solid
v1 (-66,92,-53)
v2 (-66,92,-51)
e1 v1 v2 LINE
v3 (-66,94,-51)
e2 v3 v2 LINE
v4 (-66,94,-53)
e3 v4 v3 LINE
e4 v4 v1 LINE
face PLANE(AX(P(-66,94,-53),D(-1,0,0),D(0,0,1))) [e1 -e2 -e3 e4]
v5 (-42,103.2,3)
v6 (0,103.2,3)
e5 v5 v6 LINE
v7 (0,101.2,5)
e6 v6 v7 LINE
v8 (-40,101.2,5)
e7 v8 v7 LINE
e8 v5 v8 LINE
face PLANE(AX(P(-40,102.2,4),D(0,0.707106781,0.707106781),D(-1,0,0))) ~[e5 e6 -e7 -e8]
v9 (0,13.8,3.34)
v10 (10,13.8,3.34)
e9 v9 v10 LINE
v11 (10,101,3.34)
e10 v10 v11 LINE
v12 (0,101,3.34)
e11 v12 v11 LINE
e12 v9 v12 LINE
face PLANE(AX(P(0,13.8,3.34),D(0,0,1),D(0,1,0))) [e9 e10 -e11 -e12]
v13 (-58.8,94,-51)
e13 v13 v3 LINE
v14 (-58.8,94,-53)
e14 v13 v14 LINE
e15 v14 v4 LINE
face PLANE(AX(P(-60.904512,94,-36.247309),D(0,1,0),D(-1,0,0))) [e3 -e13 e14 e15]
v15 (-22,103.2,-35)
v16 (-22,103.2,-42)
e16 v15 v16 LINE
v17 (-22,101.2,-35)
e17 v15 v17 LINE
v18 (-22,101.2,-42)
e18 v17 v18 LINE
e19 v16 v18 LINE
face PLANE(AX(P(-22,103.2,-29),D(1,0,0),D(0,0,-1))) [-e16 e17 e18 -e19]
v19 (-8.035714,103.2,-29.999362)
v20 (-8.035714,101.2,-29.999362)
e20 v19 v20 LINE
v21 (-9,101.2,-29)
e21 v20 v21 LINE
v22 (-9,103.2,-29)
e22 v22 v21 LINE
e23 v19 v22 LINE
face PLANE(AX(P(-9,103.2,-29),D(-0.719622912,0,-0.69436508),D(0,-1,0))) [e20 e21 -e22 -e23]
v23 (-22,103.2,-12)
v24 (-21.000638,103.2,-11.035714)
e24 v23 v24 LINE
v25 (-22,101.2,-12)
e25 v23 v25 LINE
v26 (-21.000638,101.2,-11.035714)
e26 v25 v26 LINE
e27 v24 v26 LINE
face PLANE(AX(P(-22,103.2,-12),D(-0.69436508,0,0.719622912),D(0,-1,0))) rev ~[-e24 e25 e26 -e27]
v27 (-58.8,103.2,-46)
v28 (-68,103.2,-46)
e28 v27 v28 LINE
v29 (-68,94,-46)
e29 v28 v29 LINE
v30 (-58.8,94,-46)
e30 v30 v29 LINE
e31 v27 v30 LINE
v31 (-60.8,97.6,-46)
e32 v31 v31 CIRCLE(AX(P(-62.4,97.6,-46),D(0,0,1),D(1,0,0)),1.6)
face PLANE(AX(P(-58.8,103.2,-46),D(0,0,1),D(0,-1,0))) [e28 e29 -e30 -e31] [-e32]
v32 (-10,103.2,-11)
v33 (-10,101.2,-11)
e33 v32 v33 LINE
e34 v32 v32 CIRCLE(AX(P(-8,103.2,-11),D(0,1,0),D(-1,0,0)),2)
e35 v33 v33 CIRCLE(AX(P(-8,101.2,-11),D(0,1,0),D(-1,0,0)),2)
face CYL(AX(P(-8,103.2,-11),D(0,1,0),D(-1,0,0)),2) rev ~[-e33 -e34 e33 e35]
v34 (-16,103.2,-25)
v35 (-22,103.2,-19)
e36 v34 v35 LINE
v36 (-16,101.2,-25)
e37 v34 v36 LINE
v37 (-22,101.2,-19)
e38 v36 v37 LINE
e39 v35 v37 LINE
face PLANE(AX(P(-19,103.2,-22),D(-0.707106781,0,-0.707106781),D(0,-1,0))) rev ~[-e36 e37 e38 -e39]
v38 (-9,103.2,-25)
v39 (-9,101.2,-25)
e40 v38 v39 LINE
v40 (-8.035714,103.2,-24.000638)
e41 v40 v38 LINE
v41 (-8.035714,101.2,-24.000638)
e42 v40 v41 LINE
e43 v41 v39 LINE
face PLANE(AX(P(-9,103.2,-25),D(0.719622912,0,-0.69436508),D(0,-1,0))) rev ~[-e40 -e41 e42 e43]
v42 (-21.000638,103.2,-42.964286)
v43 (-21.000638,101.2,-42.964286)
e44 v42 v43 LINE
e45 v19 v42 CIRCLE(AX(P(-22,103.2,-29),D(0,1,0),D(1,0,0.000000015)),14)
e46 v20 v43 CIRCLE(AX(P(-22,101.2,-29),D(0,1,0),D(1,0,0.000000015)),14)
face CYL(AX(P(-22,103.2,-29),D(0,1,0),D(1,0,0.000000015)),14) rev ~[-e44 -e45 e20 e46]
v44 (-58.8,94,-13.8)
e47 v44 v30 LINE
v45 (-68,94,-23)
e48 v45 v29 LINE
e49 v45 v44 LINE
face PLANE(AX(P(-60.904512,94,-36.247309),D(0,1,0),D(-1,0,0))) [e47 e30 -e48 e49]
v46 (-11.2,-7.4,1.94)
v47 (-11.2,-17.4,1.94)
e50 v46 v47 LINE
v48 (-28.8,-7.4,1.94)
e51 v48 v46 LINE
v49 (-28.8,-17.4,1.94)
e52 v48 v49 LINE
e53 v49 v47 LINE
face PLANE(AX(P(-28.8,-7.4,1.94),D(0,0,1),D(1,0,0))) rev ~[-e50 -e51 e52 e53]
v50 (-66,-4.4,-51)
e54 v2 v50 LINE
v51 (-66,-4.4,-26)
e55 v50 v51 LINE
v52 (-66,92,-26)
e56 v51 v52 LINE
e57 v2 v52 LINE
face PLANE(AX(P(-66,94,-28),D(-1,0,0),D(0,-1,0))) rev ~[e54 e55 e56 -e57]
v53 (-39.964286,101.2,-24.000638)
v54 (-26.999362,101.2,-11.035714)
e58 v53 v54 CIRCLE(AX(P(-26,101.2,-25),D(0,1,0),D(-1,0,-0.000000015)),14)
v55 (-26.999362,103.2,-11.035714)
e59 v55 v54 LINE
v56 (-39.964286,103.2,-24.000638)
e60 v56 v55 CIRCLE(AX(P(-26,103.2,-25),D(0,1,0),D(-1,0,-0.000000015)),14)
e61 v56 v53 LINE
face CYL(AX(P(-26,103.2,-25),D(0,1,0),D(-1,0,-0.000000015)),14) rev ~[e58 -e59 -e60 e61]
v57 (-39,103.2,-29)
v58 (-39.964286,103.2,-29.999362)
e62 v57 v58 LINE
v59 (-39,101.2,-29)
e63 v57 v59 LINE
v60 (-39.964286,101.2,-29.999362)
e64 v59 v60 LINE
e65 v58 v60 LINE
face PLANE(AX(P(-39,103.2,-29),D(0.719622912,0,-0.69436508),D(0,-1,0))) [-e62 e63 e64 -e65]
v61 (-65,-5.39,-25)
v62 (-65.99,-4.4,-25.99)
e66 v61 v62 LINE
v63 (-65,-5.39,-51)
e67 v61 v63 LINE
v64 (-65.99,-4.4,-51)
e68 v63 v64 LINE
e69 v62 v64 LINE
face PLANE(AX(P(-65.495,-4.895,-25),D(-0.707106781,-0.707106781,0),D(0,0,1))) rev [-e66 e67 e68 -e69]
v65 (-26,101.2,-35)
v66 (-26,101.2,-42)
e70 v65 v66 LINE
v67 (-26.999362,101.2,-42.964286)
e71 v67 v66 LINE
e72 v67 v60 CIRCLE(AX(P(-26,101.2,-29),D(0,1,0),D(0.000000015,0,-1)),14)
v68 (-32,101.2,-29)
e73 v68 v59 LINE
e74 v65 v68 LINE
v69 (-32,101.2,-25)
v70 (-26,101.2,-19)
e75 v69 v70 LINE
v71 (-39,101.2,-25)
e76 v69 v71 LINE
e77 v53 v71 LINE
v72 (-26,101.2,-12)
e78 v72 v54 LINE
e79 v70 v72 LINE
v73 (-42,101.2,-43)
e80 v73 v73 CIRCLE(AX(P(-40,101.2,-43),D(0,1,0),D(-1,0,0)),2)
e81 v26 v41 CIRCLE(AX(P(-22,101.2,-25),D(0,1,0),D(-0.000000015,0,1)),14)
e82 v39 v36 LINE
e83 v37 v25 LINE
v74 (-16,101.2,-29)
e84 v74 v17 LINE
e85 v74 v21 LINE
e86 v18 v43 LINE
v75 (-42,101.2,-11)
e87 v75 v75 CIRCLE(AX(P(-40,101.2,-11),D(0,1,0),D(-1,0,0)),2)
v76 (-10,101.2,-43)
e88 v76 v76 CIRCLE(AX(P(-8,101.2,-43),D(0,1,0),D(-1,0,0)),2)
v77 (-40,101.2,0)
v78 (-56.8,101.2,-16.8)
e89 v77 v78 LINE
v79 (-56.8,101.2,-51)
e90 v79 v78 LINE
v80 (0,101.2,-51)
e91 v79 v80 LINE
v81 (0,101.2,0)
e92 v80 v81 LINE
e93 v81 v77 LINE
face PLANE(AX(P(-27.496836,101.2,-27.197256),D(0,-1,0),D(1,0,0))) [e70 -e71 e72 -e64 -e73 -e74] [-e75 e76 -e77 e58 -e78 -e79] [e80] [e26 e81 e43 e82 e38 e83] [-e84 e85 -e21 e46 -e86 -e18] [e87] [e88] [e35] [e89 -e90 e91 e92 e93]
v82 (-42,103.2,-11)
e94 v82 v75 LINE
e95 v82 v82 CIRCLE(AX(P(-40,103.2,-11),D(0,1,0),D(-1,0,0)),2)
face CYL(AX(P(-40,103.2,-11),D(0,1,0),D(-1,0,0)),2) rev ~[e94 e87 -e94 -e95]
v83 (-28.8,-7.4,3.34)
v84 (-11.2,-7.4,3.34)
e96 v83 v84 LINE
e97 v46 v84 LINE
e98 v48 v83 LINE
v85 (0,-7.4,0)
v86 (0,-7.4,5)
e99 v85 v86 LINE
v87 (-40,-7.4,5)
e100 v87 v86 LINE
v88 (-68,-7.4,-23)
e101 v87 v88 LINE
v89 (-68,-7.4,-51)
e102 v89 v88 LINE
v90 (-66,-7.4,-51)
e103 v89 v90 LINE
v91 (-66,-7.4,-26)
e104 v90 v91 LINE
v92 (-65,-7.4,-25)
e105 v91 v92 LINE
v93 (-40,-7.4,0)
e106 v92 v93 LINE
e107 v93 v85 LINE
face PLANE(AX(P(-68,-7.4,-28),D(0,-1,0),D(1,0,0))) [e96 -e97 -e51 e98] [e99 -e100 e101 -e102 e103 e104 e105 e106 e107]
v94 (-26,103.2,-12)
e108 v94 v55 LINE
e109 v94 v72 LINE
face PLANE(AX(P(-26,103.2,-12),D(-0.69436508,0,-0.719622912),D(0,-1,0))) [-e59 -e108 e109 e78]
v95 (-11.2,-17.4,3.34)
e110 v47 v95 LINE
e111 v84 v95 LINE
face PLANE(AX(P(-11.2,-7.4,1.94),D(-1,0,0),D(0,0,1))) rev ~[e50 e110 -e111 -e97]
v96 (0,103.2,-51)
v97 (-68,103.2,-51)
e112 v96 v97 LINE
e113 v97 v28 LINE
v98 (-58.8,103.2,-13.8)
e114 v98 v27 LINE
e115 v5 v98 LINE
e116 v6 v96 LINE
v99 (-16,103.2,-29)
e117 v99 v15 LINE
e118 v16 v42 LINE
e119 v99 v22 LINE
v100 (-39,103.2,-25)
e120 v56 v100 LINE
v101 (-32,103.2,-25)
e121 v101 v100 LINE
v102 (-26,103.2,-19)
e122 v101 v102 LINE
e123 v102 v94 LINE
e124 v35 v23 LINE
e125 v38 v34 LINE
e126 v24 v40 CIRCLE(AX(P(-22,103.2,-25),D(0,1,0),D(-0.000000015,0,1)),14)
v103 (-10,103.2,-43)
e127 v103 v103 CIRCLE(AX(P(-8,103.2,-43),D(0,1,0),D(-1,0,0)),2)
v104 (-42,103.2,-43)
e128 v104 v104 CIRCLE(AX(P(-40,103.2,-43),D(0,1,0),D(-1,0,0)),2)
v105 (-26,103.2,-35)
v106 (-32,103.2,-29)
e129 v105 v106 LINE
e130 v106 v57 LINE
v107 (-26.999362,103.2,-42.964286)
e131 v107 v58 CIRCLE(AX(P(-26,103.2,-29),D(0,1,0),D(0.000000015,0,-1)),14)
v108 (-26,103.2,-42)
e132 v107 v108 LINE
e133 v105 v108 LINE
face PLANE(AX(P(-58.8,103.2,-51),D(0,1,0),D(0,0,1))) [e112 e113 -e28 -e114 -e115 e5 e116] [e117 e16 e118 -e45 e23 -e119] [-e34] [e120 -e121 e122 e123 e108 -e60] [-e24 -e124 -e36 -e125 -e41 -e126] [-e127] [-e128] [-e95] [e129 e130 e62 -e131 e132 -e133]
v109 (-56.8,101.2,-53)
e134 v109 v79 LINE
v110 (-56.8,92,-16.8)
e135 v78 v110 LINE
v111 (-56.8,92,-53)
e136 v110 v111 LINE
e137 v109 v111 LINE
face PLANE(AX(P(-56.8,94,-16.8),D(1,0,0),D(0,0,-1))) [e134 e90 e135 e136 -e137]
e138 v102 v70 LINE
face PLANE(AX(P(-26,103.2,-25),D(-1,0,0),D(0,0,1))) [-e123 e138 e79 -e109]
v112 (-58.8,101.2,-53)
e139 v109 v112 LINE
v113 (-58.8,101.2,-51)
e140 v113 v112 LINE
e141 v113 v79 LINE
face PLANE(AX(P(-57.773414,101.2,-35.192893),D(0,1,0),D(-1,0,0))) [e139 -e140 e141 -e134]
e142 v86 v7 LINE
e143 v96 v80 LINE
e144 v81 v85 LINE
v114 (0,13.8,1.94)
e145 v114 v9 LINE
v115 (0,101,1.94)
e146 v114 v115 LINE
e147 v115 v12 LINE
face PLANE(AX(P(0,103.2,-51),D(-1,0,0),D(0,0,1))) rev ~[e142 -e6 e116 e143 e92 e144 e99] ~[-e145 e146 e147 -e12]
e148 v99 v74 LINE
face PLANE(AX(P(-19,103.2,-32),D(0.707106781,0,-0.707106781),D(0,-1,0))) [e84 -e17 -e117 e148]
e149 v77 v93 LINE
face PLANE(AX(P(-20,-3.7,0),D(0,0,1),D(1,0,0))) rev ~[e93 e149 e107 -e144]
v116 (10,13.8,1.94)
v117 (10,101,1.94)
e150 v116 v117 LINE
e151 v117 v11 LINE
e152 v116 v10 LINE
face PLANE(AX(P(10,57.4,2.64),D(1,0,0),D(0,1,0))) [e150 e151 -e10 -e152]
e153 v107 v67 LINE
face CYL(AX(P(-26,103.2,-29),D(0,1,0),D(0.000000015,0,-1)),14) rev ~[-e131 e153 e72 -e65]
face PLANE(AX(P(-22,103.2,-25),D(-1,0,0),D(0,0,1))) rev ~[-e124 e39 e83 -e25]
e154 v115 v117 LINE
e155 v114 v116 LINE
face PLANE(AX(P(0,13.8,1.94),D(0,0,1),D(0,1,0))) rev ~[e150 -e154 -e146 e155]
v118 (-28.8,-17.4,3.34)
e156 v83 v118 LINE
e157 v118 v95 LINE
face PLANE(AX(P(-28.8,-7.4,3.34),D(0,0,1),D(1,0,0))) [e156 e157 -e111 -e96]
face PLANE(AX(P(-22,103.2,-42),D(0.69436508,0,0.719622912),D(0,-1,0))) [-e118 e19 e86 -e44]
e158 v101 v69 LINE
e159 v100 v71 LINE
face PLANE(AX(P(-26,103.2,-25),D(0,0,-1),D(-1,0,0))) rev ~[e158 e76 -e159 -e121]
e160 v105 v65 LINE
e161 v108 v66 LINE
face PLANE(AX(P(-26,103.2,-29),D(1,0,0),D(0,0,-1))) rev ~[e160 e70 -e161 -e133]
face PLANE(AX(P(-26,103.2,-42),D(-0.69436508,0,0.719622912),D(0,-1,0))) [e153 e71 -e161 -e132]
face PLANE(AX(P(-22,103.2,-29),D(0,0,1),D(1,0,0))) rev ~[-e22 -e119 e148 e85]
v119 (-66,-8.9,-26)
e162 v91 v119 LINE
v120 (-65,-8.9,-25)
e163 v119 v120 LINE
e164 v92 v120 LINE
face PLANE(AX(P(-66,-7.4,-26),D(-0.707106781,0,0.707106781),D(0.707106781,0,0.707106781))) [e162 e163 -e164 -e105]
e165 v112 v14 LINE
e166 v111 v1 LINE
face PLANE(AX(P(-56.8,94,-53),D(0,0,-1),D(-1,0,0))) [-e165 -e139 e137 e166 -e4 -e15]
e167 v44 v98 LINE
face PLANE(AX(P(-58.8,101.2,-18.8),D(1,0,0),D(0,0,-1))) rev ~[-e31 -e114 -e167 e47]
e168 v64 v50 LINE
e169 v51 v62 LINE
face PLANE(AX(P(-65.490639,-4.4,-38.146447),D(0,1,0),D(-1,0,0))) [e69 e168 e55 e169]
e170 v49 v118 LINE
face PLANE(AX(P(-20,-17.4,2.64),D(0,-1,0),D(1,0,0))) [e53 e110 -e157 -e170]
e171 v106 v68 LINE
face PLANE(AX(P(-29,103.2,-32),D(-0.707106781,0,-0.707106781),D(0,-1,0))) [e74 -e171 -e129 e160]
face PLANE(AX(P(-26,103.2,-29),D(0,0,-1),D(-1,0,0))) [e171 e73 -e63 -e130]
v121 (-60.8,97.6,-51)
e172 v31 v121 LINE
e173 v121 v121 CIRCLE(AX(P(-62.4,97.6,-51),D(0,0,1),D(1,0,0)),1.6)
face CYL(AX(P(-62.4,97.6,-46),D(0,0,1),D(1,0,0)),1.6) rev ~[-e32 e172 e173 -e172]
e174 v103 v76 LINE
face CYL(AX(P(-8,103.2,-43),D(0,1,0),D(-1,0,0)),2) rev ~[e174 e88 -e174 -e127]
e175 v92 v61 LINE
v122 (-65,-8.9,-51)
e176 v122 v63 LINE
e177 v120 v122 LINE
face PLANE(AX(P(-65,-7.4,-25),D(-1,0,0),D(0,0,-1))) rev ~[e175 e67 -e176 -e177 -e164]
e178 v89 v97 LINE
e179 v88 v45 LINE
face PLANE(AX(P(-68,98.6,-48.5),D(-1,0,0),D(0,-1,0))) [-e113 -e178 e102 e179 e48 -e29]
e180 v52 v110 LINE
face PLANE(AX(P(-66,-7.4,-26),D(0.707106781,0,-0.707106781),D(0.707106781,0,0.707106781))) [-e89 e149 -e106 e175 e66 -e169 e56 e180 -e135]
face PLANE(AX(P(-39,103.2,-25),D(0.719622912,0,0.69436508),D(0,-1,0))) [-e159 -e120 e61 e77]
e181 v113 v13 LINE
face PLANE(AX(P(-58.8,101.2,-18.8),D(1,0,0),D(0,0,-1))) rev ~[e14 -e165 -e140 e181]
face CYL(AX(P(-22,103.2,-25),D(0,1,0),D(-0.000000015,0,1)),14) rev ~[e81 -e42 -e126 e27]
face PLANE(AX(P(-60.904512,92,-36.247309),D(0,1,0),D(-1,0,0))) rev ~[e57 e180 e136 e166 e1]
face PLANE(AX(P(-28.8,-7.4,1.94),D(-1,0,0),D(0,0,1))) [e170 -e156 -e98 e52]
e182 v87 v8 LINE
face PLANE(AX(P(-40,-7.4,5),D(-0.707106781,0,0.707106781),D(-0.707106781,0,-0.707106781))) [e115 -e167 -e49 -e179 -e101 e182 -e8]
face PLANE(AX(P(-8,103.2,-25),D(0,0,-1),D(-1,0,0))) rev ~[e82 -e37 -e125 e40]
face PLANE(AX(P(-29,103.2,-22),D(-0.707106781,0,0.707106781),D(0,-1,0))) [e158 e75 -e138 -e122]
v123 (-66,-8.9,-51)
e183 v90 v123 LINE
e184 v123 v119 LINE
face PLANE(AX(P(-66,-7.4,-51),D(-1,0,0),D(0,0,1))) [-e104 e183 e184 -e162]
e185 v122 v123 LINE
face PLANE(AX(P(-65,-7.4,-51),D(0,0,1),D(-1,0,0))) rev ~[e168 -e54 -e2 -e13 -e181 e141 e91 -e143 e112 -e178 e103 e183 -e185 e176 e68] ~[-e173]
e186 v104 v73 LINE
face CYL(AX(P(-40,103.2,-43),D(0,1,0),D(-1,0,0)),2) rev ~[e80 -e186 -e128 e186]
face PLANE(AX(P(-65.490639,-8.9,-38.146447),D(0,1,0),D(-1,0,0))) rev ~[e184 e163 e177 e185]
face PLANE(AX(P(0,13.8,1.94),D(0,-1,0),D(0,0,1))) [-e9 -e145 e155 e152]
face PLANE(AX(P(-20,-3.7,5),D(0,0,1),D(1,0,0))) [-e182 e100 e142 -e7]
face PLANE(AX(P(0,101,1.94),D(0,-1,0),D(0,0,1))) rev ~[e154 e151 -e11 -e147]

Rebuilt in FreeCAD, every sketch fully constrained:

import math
import FreeCAD as App
import Part
import Sketcher
from FreeCAD import Vector
Q = App.Units.Quantity


def edges_at(feature, points):
    """Names of the edges that pass closest to the given points."""
    edges = feature.Shape.Edges
    near = lambda p: min(range(len(edges)), key=lambda i: edges[i].distToShape(Part.Vertex(*p))[0])
    return sorted({f"Edge{near(p) + 1}" for p in points})

doc = App.newDocument("Part")
params = doc.addObject("Spreadsheet::Sheet", "Params")
for row, (alias, value) in enumerate([
    ("sketch1_width", "40 mm"),
    ("sketch1_height", "93 mm"),
    ("pad1_length", "5 mm"),
    ("sketch2_width", "40 mm"),
    ("sketch2_height", "5 mm"),
    ("pad2_length", "10.2 mm"),
    ("sketch3_width", "40 mm"),
    ("sketch3_height", "7.4 mm"),
    ("pad3_length", "5 mm"),
    ("sketch4_width", "2 mm"),
    ("sketch4_height", "5 mm"),
    ("pad4_length", "110.6 mm"),
    ("sketch5_width", "9.2 mm"),
    ("sketch6_width", "2 mm"),
    ("sketch6_height", "101.4 mm"),
    ("pad5_length", "23 mm"),
    ("sketch7_width", "87.2 mm"),
    ("sketch7_height", "1.4 mm"),
    ("pad6_length", "10 mm"),
    ("sketch8_width", "40 mm"),
    ("sketch8_height", "51 mm"),
    ("sketch8_width2", "58.8 mm"),
    ("pad7_length", "2 mm"),
    ("sketch9_width", "2 mm"),
    ("sketch9_height", "34.2 mm"),
    ("pad8_length", "7.2 mm"),
    ("sketch10_height", "27 mm"),
    ("sketch10_width", "9.2 mm"),
    ("pad9_length", "2 mm"),
    ("sketch11_height", "5 mm"),
    ("sketch11_width", "9.2 mm"),
    ("pad10_length", "9.2 mm"),
    ("sketch12_diameter", "3.2 mm"),
    ("pocket2_length", "5 mm"),
    ("sketch13_width", "17.6 mm"),
    ("sketch13_height", "1.4 mm"),
    ("pad11_length", "10 mm"),
    ("sketch14_diameter", "4 mm"),
    ("sketch14_radius", "14 mm"),
    ("pocket3_length", "2 mm"),
    ("chamfer_size", "6 mm"),
    ("chamfer2_size", "2 mm"),
    ("sketch15_width", "1 mm"),
    ("sketch15_height", "25 mm"),
    ("sketch15_height2", "26 mm"),
    ("pad12_length", "1.5 mm"),
    ("pad12_length2", "3 mm"),
    ("chamfer3_size", "0.99 mm"),
    ("chamfer4_size", "1 mm"),
], start=1):
    params.set(f"A{row}", alias)
    params.set(f"B{row}", "=" + value)
    params.setAlias(f"B{row}", alias)

body = doc.addObject("PartDesign::Body", "Body")

# Sketch on XY plane
sketch1 = body.newObject("Sketcher::SketchObject", "Sketch")
sketch1.AttachmentSupport = (doc.getObject("XY_Plane"), [""])
sketch1.MapMode = "FlatFace"
sketch1.addGeometry([
    Part.LineSegment(Vector(-40, 93, 0), Vector(-40, 0, 0)),
    Part.LineSegment(Vector(-40, 0, 0), Vector(0, 0, 0)),
    Part.LineSegment(Vector(0, 0, 0), Vector(0, 93, 0)),
    Part.LineSegment(Vector(0, 93, 0), Vector(-40, 93, 0)),
], False)
sketch1.addConstraint([
    Sketcher.Constraint("Coincident", 0, 2, 1, 1),
    Sketcher.Constraint("Coincident", 1, 2, 2, 1),
    Sketcher.Constraint("Coincident", 2, 2, 3, 1),
    Sketcher.Constraint("Coincident", 3, 2, 0, 1),
    Sketcher.Constraint("Vertical", 0),
    Sketcher.Constraint("Horizontal", 1),
    Sketcher.Constraint("Vertical", 2),
    Sketcher.Constraint("Horizontal", 3),
    Sketcher.Constraint("Coincident", 1, 2, -1, 1),
    Sketcher.Constraint("DistanceX", 1, 1, 1, 2, 40.0),
    Sketcher.Constraint("DistanceY", 0, 2, 0, 1, 93.0),
])
sketch1.setExpression("Constraints[9]", "Params.sketch1_width")
sketch1.setExpression("Constraints[10]", "Params.sketch1_height")
pad1 = body.newObject("PartDesign::Pad", "Pad")
pad1.Profile = sketch1
pad1.setExpression("Length", "Params.pad1_length")

# Sketch on XZ plane
sketch2 = body.newObject("Sketcher::SketchObject", "Sketch001")
sketch2.AttachmentSupport = (doc.getObject("XZ_Plane"), [""])
sketch2.MapMode = "FlatFace"
sketch2.AttachmentOffset = App.Placement(Vector(0, 0, -93), App.Rotation())
sketch2.addGeometry([
    Part.LineSegment(Vector(-40, 0, 0), Vector(-40, 5, 0)),
    Part.LineSegment(Vector(-40, 5, 0), Vector(0, 5, 0)),
    Part.LineSegment(Vector(0, 5, 0), Vector(0, 0, 0)),
    Part.LineSegment(Vector(0, 0, 0), Vector(-40, 0, 0)),
], False)
sketch2.addConstraint([
    Sketcher.Constraint("Coincident", 0, 2, 1, 1),
    Sketcher.Constraint("Coincident", 1, 2, 2, 1),
    Sketcher.Constraint("Coincident", 2, 2, 3, 1),
    Sketcher.Constraint("Coincident", 3, 2, 0, 1),
    Sketcher.Constraint("Vertical", 0),
    Sketcher.Constraint("Horizontal", 1),
    Sketcher.Constraint("Vertical", 2),
    Sketcher.Constraint("Horizontal", 3),
    Sketcher.Constraint("Coincident", 2, 2, -1, 1),
    Sketcher.Constraint("DistanceX", 1, 1, 1, 2, 40.0),
    Sketcher.Constraint("DistanceY", 0, 1, 0, 2, 5.0),
])
sketch2.setExpression("Constraints[9]", "Params.sketch2_width")
sketch2.setExpression("Constraints[10]", "Params.sketch2_height")
pad2 = body.newObject("PartDesign::Pad", "Pad001")
pad2.Profile = sketch2
pad2.setExpression("Length", "Params.pad2_length")
pad2.Reversed = True

# Sketch on XY plane
sketch3 = body.newObject("Sketcher::SketchObject", "Sketch002")
sketch3.AttachmentSupport = (doc.getObject("XY_Plane"), [""])
sketch3.MapMode = "FlatFace"
sketch3.addGeometry([
    Part.LineSegment(Vector(-40, 0, 0), Vector(-40, -7.4, 0)),
    Part.LineSegment(Vector(-40, -7.4, 0), Vector(0, -7.4, 0)),
    Part.LineSegment(Vector(0, -7.4, 0), Vector(0, 0, 0)),
    Part.LineSegment(Vector(0, 0, 0), Vector(-40, 0, 0)),
], False)
sketch3.addConstraint([
    Sketcher.Constraint("Coincident", 0, 2, 1, 1),
    Sketcher.Constraint("Coincident", 1, 2, 2, 1),
    Sketcher.Constraint("Coincident", 2, 2, 3, 1),
    Sketcher.Constraint("Coincident", 3, 2, 0, 1),
    Sketcher.Constraint("Vertical", 0),
    Sketcher.Constraint("Horizontal", 1),
    Sketcher.Constraint("Vertical", 2),
    Sketcher.Constraint("Horizontal", 3),
    Sketcher.Constraint("Coincident", 2, 2, -1, 1),
    Sketcher.Constraint("DistanceX", 1, 1, 1, 2, 40.0),
    Sketcher.Constraint("DistanceY", 0, 2, 0, 1, 7.4),
])
sketch3.setExpression("Constraints[9]", "Params.sketch3_width")
sketch3.setExpression("Constraints[10]", "Params.sketch3_height")
pad3 = body.newObject("PartDesign::Pad", "Pad002")
pad3.Profile = sketch3
pad3.setExpression("Length", "Params.pad3_length")

# Sketch on XZ plane
sketch4 = body.newObject("Sketcher::SketchObject", "Sketch003")
sketch4.AttachmentSupport = (doc.getObject("XZ_Plane"), [""])
sketch4.MapMode = "FlatFace"
sketch4.AttachmentOffset = App.Placement(Vector(0, 0, 7.4), App.Rotation())
sketch4.addGeometry([
    Part.LineSegment(Vector(-40, 5, 0), Vector(-68, -23, 0)),  # 0
    Part.LineSegment(Vector(-68, -23, 0), Vector(-68, -28, 0)),  # 1
    Part.LineSegment(Vector(-68, -28, 0), Vector(-66, -28, 0)),  # 2
    Part.LineSegment(Vector(-66, -28, 0), Vector(-66, -26, 0)),  # 3
    Part.LineSegment(Vector(-66, -26, 0), Vector(-40, 0, 0)),  # 4
    Part.LineSegment(Vector(-40, 0, 0), Vector(-40, 5, 0)),  # 5
], False)
sketch4.addConstraint([
    Sketcher.Constraint("Coincident", 0, 2, 1, 1),
    Sketcher.Constraint("Coincident", 1, 2, 2, 1),
    Sketcher.Constraint("Coincident", 2, 2, 3, 1),
    Sketcher.Constraint("Coincident", 3, 2, 4, 1),
    Sketcher.Constraint("Coincident", 4, 2, 5, 1),
    Sketcher.Constraint("Coincident", 5, 2, 0, 1),
    Sketcher.Constraint("Vertical", 1),
    Sketcher.Constraint("Horizontal", 2),
    Sketcher.Constraint("Vertical", 3),
    Sketcher.Constraint("Vertical", 5),
    Sketcher.Constraint("PointOnObject", 4, 2, -1),
    Sketcher.Constraint("Parallel", 0, 4),
    Sketcher.Constraint("Equal", 2, 3),
    Sketcher.Constraint("Equal", 1, 5),
    Sketcher.Constraint("DistanceX", 2, 1, 2, 2, 2.0),
    Sketcher.Constraint("DistanceY", 1, 2, 1, 1, 5.0),
    Sketcher.Constraint("DistanceX", 0, 2, -1, 1, 68.0),
    Sketcher.Constraint("DistanceY", 0, 2, -1, 1, 23.0),
])
sketch4.setExpression("Constraints[14]", "Params.sketch4_width")
sketch4.setExpression("Constraints[15]", "Params.sketch4_height")
pad4 = body.newObject("PartDesign::Pad", "Pad003")
pad4.Profile = sketch4
pad4.setExpression("Length", "Params.pad4_length")
pad4.Reversed = True

# Sketch on XY plane
sketch5 = body.newObject("Sketcher::SketchObject", "Sketch004")
sketch5.AttachmentSupport = (doc.getObject("XY_Plane"), [""])
sketch5.MapMode = "FlatFace"
sketch5.AttachmentOffset = App.Placement(Vector(0, 0, 5), App.Rotation())
sketch5.addGeometry([
    Part.LineSegment(Vector(-68, 103.2, 0), Vector(-68, 94, 0)),
    Part.LineSegment(Vector(-68, 94, 0), Vector(-58.8, 94, 0)),
    Part.LineSegment(Vector(-58.8, 94, 0), Vector(-58.8, 103.2, 0)),
    Part.LineSegment(Vector(-58.8, 103.2, 0), Vector(-68, 103.2, 0)),
], False)
sketch5.addConstraint([
    Sketcher.Constraint("Coincident", 0, 2, 1, 1),
    Sketcher.Constraint("Coincident", 1, 2, 2, 1),
    Sketcher.Constraint("Coincident", 2, 2, 3, 1),
    Sketcher.Constraint("Coincident", 3, 2, 0, 1),
    Sketcher.Constraint("Vertical", 0),
    Sketcher.Constraint("Horizontal", 1),
    Sketcher.Constraint("Vertical", 2),
    Sketcher.Constraint("Horizontal", 3),
    Sketcher.Constraint("Equal", 3, 0),
    Sketcher.Constraint("DistanceX", 1, 1, 1, 2, 9.2),
    Sketcher.Constraint("DistanceX", 0, 2, -1, 1, 68.0),
    Sketcher.Constraint("DistanceY", -1, 1, 0, 2, 94.0),
])
sketch5.setExpression("Constraints[9]", "Params.sketch5_width")
pocket1 = body.newObject("PartDesign::Pocket", "Pocket")
pocket1.Profile = sketch5
pocket1.Type = "ThroughAll"

# Sketch on XY plane
sketch6 = body.newObject("Sketcher::SketchObject", "Sketch005")
sketch6.AttachmentSupport = (doc.getObject("XY_Plane"), [""])
sketch6.MapMode = "FlatFace"
sketch6.AttachmentOffset = App.Placement(Vector(0, 0, -28), App.Rotation())
sketch6.addGeometry([
    Part.LineSegment(Vector(-68, -7.4, 0), Vector(-68, 94, 0)),
    Part.LineSegment(Vector(-68, 94, 0), Vector(-66, 94, 0)),
    Part.LineSegment(Vector(-66, 94, 0), Vector(-66, -7.4, 0)),
    Part.LineSegment(Vector(-66, -7.4, 0), Vector(-68, -7.4, 0)),
], False)
sketch6.addConstraint([
    Sketcher.Constraint("Coincident", 0, 2, 1, 1),
    Sketcher.Constraint("Coincident", 1, 2, 2, 1),
    Sketcher.Constraint("Coincident", 2, 2, 3, 1),
    Sketcher.Constraint("Coincident", 3, 2, 0, 1),
    Sketcher.Constraint("Vertical", 0),
    Sketcher.Constraint("Horizontal", 1),
    Sketcher.Constraint("Vertical", 2),
    Sketcher.Constraint("Horizontal", 3),
    Sketcher.Constraint("DistanceX", 1, 1, 1, 2, 2.0),
    Sketcher.Constraint("DistanceY", 0, 1, 0, 2, 101.4),
    Sketcher.Constraint("DistanceX", 0, 2, -1, 1, 68.0),
    Sketcher.Constraint("DistanceY", -1, 1, 0, 2, 94.0),
])
sketch6.setExpression("Constraints[8]", "Params.sketch6_width")
sketch6.setExpression("Constraints[9]", "Params.sketch6_height")
pad5 = body.newObject("PartDesign::Pad", "Pad004")
pad5.Profile = sketch6
pad5.setExpression("Length", "Params.pad5_length")
pad5.Reversed = True

# Sketch on YZ plane
sketch7 = body.newObject("Sketcher::SketchObject", "Sketch006")
sketch7.AttachmentSupport = (doc.getObject("YZ_Plane"), [""])
sketch7.MapMode = "FlatFace"
sketch7.addGeometry([
    Part.LineSegment(Vector(13.8, 3.34, 0), Vector(13.8, 1.94, 0)),
    Part.LineSegment(Vector(13.8, 1.94, 0), Vector(101, 1.94, 0)),
    Part.LineSegment(Vector(101, 1.94, 0), Vector(101, 3.34, 0)),
    Part.LineSegment(Vector(101, 3.34, 0), Vector(13.8, 3.34, 0)),
], False)
sketch7.addConstraint([
    Sketcher.Constraint("Coincident", 0, 2, 1, 1),
    Sketcher.Constraint("Coincident", 1, 2, 2, 1),
    Sketcher.Constraint("Coincident", 2, 2, 3, 1),
    Sketcher.Constraint("Coincident", 3, 2, 0, 1),
    Sketcher.Constraint("Vertical", 0),
    Sketcher.Constraint("Horizontal", 1),
    Sketcher.Constraint("Vertical", 2),
    Sketcher.Constraint("Horizontal", 3),
    Sketcher.Constraint("DistanceX", 1, 1, 1, 2, 87.2),
    Sketcher.Constraint("DistanceY", 0, 2, 0, 1, 1.4),
    Sketcher.Constraint("DistanceX", -1, 1, 1, 2, 101.0),
    Sketcher.Constraint("DistanceY", -1, 1, 0, 2, 1.94),
])
sketch7.setExpression("Constraints[8]", "Params.sketch7_width")
sketch7.setExpression("Constraints[9]", "Params.sketch7_height")
pad6 = body.newObject("PartDesign::Pad", "Pad005")
pad6.Profile = sketch7
pad6.setExpression("Length", "Params.pad6_length")

# Sketch on XZ plane
sketch8 = body.newObject("Sketcher::SketchObject", "Sketch007")
sketch8.AttachmentSupport = (doc.getObject("XZ_Plane"), [""])
sketch8.MapMode = "FlatFace"
sketch8.AttachmentOffset = App.Placement(Vector(0, 0, -103.2), App.Rotation())
sketch8.addGeometry([
    Part.LineSegment(Vector(-40, 0, 0), Vector(0, 0, 0)),  # 0
    Part.LineSegment(Vector(0, 0, 0), Vector(0, -51, 0)),  # 1
    Part.LineSegment(Vector(0, -51, 0), Vector(-58.8, -51, 0)),  # 2
    Part.LineSegment(Vector(-58.8, -51, 0), Vector(-58.8, -18.8, 0)),  # 3
    Part.LineSegment(Vector(-58.8, -18.8, 0), Vector(-40, 0, 0)),  # 4
], False)
sketch8.addConstraint([
    Sketcher.Constraint("Coincident", 0, 2, 1, 1),
    Sketcher.Constraint("Coincident", 1, 2, 2, 1),
    Sketcher.Constraint("Coincident", 2, 2, 3, 1),
    Sketcher.Constraint("Coincident", 3, 2, 4, 1),
    Sketcher.Constraint("Coincident", 4, 2, 0, 1),
    Sketcher.Constraint("Horizontal", 0),
    Sketcher.Constraint("Vertical", 1),
    Sketcher.Constraint("Horizontal", 2),
    Sketcher.Constraint("Vertical", 3),
    Sketcher.Constraint("Coincident", 0, 2, -1, 1),
    Sketcher.Constraint("DistanceX", 0, 1, 0, 2, 40.0),
    Sketcher.Constraint("DistanceY", 1, 2, 1, 1, 51.0),
    Sketcher.Constraint("Angle", 4, Q("45 deg")),
    Sketcher.Constraint("DistanceX", 2, 2, 2, 1, 58.8),
])
sketch8.setExpression("Constraints[10]", "Params.sketch8_width")
sketch8.setExpression("Constraints[11]", "Params.sketch8_height")
sketch8.setExpression("Constraints[13]", "Params.sketch8_width2")
pad7 = body.newObject("PartDesign::Pad", "Pad006")
pad7.Profile = sketch8
pad7.setExpression("Length", "Params.pad7_length")

# Sketch on XZ plane
sketch9 = body.newObject("Sketcher::SketchObject", "Sketch008")
sketch9.AttachmentSupport = (doc.getObject("XZ_Plane"), [""])
sketch9.MapMode = "FlatFace"
sketch9.AttachmentOffset = App.Placement(Vector(0, 0, -101.2), App.Rotation())
sketch9.addGeometry([
    Part.LineSegment(Vector(-58.8, -18.8, 0), Vector(-58.8, -53, 0)),
    Part.LineSegment(Vector(-58.8, -53, 0), Vector(-56.8, -53, 0)),
    Part.LineSegment(Vector(-56.8, -53, 0), Vector(-56.8, -16.8, 0)),
    Part.LineSegment(Vector(-56.8, -16.8, 0), Vector(-58.8, -18.8, 0)),
], False)
sketch9.addConstraint([
    Sketcher.Constraint("Coincident", 0, 2, 1, 1),
    Sketcher.Constraint("Coincident", 1, 2, 2, 1),
    Sketcher.Constraint("Coincident", 2, 2, 3, 1),
    Sketcher.Constraint("Coincident", 3, 2, 0, 1),
    Sketcher.Constraint("Vertical", 0),
    Sketcher.Constraint("Horizontal", 1),
    Sketcher.Constraint("Vertical", 2),
    Sketcher.Constraint("DistanceX", 1, 1, 1, 2, 2.0),
    Sketcher.Constraint("Angle", 3, Q("-135 deg")),
    Sketcher.Constraint("DistanceY", 0, 2, 0, 1, 34.2),
    Sketcher.Constraint("DistanceY", 0, 2, -1, 1, 53.0),
    Sketcher.Constraint("DistanceX", 0, 2, -1, 1, 58.8),
])
sketch9.setExpression("Constraints[7]", "Params.sketch9_width")
sketch9.setExpression("Constraints[9]", "Params.sketch9_height")
pad8 = body.newObject("PartDesign::Pad", "Pad007")
pad8.Profile = sketch9
pad8.setExpression("Length", "Params.pad8_length")

# Sketch on XZ plane
sketch10 = body.newObject("Sketcher::SketchObject", "Sketch009")
sketch10.AttachmentSupport = (doc.getObject("XZ_Plane"), [""])
sketch10.MapMode = "FlatFace"
sketch10.AttachmentOffset = App.Placement(Vector(0, 0, -94), App.Rotation())
sketch10.addGeometry([
    Part.LineSegment(Vector(-66, -53, 0), Vector(-56.8, -53, 0)),
    Part.LineSegment(Vector(-56.8, -53, 0), Vector(-56.8, -16.8, 0)),
    Part.LineSegment(Vector(-56.8, -16.8, 0), Vector(-66, -26, 0)),
    Part.LineSegment(Vector(-66, -26, 0), Vector(-66, -53, 0)),
], False)
sketch10.addConstraint([
    Sketcher.Constraint("Coincident", 0, 2, 1, 1),
    Sketcher.Constraint("Coincident", 1, 2, 2, 1),
    Sketcher.Constraint("Coincident", 2, 2, 3, 1),
    Sketcher.Constraint("Coincident", 3, 2, 0, 1),
    Sketcher.Constraint("Horizontal", 0),
    Sketcher.Constraint("Vertical", 1),
    Sketcher.Constraint("Vertical", 3),
    Sketcher.Constraint("DistanceY", 3, 2, 3, 1, 27.0),
    Sketcher.Constraint("Angle", 2, Q("-135 deg")),
    Sketcher.Constraint("DistanceX", 0, 1, 0, 2, 9.2),
    Sketcher.Constraint("DistanceY", 0, 2, -1, 1, 53.0),
    Sketcher.Constraint("DistanceX", 2, 2, -1, 1, 66.0),
])
sketch10.setExpression("Constraints[7]", "Params.sketch10_height")
sketch10.setExpression("Constraints[9]", "Params.sketch10_width")
pad9 = body.newObject("PartDesign::Pad", "Pad008")
pad9.Profile = sketch10
pad9.setExpression("Length", "Params.pad9_length")

# Sketch on YZ plane
sketch11 = body.newObject("Sketcher::SketchObject", "Sketch010")
sketch11.AttachmentSupport = (doc.getObject("YZ_Plane"), [""])
sketch11.MapMode = "FlatFace"
sketch11.AttachmentOffset = App.Placement(Vector(0, 0, -58.8), App.Rotation())
sketch11.addGeometry([
    Part.LineSegment(Vector(103.2, -46, 0), Vector(103.2, -51, 0)),
    Part.LineSegment(Vector(103.2, -51, 0), Vector(94, -51, 0)),
    Part.LineSegment(Vector(94, -51, 0), Vector(94, -46, 0)),
    Part.LineSegment(Vector(94, -46, 0), Vector(103.2, -46, 0)),
], False)
sketch11.addConstraint([
    Sketcher.Constraint("Coincident", 0, 2, 1, 1),
    Sketcher.Constraint("Coincident", 1, 2, 2, 1),
    Sketcher.Constraint("Coincident", 2, 2, 3, 1),
    Sketcher.Constraint("Coincident", 3, 2, 0, 1),
    Sketcher.Constraint("Vertical", 0),
    Sketcher.Constraint("Horizontal", 1),
    Sketcher.Constraint("Vertical", 2),
    Sketcher.Constraint("Horizontal", 3),
    Sketcher.Constraint("DistanceY", 0, 2, 0, 1, 5.0),
    Sketcher.Constraint("DistanceX", 1, 2, 1, 1, 9.2),
    Sketcher.Constraint("DistanceY", 0, 2, -1, 1, 51.0),
    Sketcher.Constraint("DistanceX", -1, 1, 1, 2, 94.0),
])
sketch11.setExpression("Constraints[8]", "Params.sketch11_height")
sketch11.setExpression("Constraints[9]", "Params.sketch11_width")
pad10 = body.newObject("PartDesign::Pad", "Pad009")
pad10.Profile = sketch11
pad10.setExpression("Length", "Params.pad10_length")
pad10.Reversed = True

# Sketch on XY plane
sketch12 = body.newObject("Sketcher::SketchObject", "Sketch011")
sketch12.AttachmentSupport = (doc.getObject("XY_Plane"), [""])
sketch12.MapMode = "FlatFace"
sketch12.AttachmentOffset = App.Placement(Vector(0, 0, -46), App.Rotation())
sketch12.addGeometry(Part.Circle(Vector(-62.4, 97.6, 0), Vector(0, 0, 1), 1.6), False)
sketch12.addConstraint([
    Sketcher.Constraint("Diameter", 0, 3.2),
    Sketcher.Constraint("DistanceX", 0, 3, -1, 1, 62.4),
    Sketcher.Constraint("DistanceY", -1, 1, 0, 3, 97.6),
])
sketch12.setExpression("Constraints[0]", "Params.sketch12_diameter")
pocket2 = body.newObject("PartDesign::Pocket", "Pocket001")
pocket2.Profile = sketch12
pocket2.setExpression("Length", "Params.pocket2_length")

# Sketch on XZ plane
sketch13 = body.newObject("Sketcher::SketchObject", "Sketch012")
sketch13.AttachmentSupport = (doc.getObject("XZ_Plane"), [""])
sketch13.MapMode = "FlatFace"
sketch13.AttachmentOffset = App.Placement(Vector(0, 0, 7.4), App.Rotation())
sketch13.addGeometry([
    Part.LineSegment(Vector(-28.8, 3.34, 0), Vector(-28.8, 1.94, 0)),
    Part.LineSegment(Vector(-28.8, 1.94, 0), Vector(-11.2, 1.94, 0)),
    Part.LineSegment(Vector(-11.2, 1.94, 0), Vector(-11.2, 3.34, 0)),
    Part.LineSegment(Vector(-11.2, 3.34, 0), Vector(-28.8, 3.34, 0)),
], False)
sketch13.addConstraint([
    Sketcher.Constraint("Coincident", 0, 2, 1, 1),
    Sketcher.Constraint("Coincident", 1, 2, 2, 1),
    Sketcher.Constraint("Coincident", 2, 2, 3, 1),
    Sketcher.Constraint("Coincident", 3, 2, 0, 1),
    Sketcher.Constraint("Vertical", 0),
    Sketcher.Constraint("Horizontal", 1),
    Sketcher.Constraint("Vertical", 2),
    Sketcher.Constraint("Horizontal", 3),
    Sketcher.Constraint("DistanceX", 1, 1, 1, 2, 17.6),
    Sketcher.Constraint("DistanceY", 0, 2, 0, 1, 1.4),
    Sketcher.Constraint("DistanceX", 0, 2, -1, 1, 28.8),
    Sketcher.Constraint("DistanceY", -1, 1, 0, 2, 1.94),
])
sketch13.setExpression("Constraints[8]", "Params.sketch13_width")
sketch13.setExpression("Constraints[9]", "Params.sketch13_height")
pad11 = body.newObject("PartDesign::Pad", "Pad010")
pad11.Profile = sketch13
pad11.setExpression("Length", "Params.pad11_length")

# Sketch on XZ plane
sketch14 = body.newObject("Sketcher::SketchObject", "Sketch013")
sketch14.AttachmentSupport = (doc.getObject("XZ_Plane"), [""])
sketch14.MapMode = "FlatFace"
sketch14.AttachmentOffset = App.Placement(Vector(0, 0, -103.2), App.Rotation())
sketch14.addGeometry([
    Part.Circle(Vector(-8, -11, 0), Vector(0, 0, 1), 2),  # 0
    Part.Circle(Vector(-8, -43, 0), Vector(0, 0, 1), 2),  # 1
    Part.Circle(Vector(-40, -43, 0), Vector(0, 0, 1), 2),  # 2
    Part.Circle(Vector(-40, -11, 0), Vector(0, 0, 1), 2),  # 3
    Part.LineSegment(Vector(-8, -25, 0), Vector(-22, -25, 0)),  # 4
    Part.LineSegment(Vector(-22, -25, 0), Vector(-22, -11, 0)),  # 5
    Part.ArcOfCircle(Part.Circle(Vector(-22, -25, 0), Vector(0, 0, 1), 14), math.radians(-0.000001), math.radians(90.000001)),  # 6
    Part.LineSegment(Vector(-26, -11, 0), Vector(-26, -25, 0)),  # 7
    Part.LineSegment(Vector(-26, -25, 0), Vector(-40, -25, 0)),  # 8
    Part.ArcOfCircle(Part.Circle(Vector(-26, -25, 0), Vector(0, 0, 1), 14), math.radians(89.999999), math.radians(180.000001)),  # 9
    Part.LineSegment(Vector(-22, -29, 0), Vector(-8, -29, 0)),  # 10
    Part.ArcOfCircle(Part.Circle(Vector(-22, -29, 0), Vector(0, 0, 1), 14), math.radians(-90.000001), math.radians(0.000001)),  # 11
    Part.LineSegment(Vector(-22, -43, 0), Vector(-22, -29, 0)),  # 12
    Part.LineSegment(Vector(-40, -29, 0), Vector(-26, -29, 0)),  # 13
    Part.LineSegment(Vector(-26, -29, 0), Vector(-26, -43, 0)),  # 14
    Part.ArcOfCircle(Part.Circle(Vector(-26, -29, 0), Vector(0, 0, 1), 14), math.radians(179.999999), math.radians(270.000001)),  # 15
], False)
sketch14.addConstraint([
    Sketcher.Constraint("Coincident", 4, 2, 5, 1),
    Sketcher.Constraint("Coincident", 5, 2, 6, 2),
    Sketcher.Constraint("Coincident", 6, 1, 4, 1),
    Sketcher.Constraint("Coincident", 7, 2, 8, 1),
    Sketcher.Constraint("Coincident", 8, 2, 9, 2),
    Sketcher.Constraint("Coincident", 9, 1, 7, 1),
    Sketcher.Constraint("Coincident", 10, 2, 11, 2),
    Sketcher.Constraint("Coincident", 11, 1, 12, 1),
    Sketcher.Constraint("Coincident", 12, 2, 10, 1),
    Sketcher.Constraint("Coincident", 13, 2, 14, 1),
    Sketcher.Constraint("Coincident", 14, 2, 15, 2),
    Sketcher.Constraint("Coincident", 15, 1, 13, 1),
    Sketcher.Constraint("Horizontal", 4),
    Sketcher.Constraint("Vertical", 5),
    Sketcher.Constraint("Vertical", 7),
    Sketcher.Constraint("Horizontal", 8),
    Sketcher.Constraint("Horizontal", 10),
    Sketcher.Constraint("Vertical", 12),
    Sketcher.Constraint("Horizontal", 13),
    Sketcher.Constraint("Vertical", 14),
    Sketcher.Constraint("Coincident", 4, 2, 6, 3),
    Sketcher.Constraint("Coincident", 7, 2, 9, 3),
    Sketcher.Constraint("Coincident", 12, 2, 11, 3),
    Sketcher.Constraint("Coincident", 13, 2, 15, 3),
    Sketcher.Constraint("Equal", 0, 1),
    Sketcher.Constraint("Equal", 1, 2),
    Sketcher.Constraint("Equal", 2, 3),
    Sketcher.Constraint("Equal", 6, 9),
    Sketcher.Constraint("Equal", 9, 11),
    Sketcher.Constraint("Equal", 11, 15),
    Sketcher.Constraint("Horizontal", 1, 3, 2, 3),
    Sketcher.Constraint("Horizontal", 0, 3, 3, 3),
    Sketcher.Constraint("Horizontal", 6, 3, 9, 3),
    Sketcher.Constraint("Horizontal", 11, 3, 15, 3),
    Sketcher.Constraint("Horizontal", 3, 3, 5, 2),
    Sketcher.Constraint("Horizontal", 2, 3, 11, 1),
    Sketcher.Constraint("Vertical", 0, 3, 1, 3),
    Sketcher.Constraint("Vertical", 2, 3, 3, 3),
    Sketcher.Constraint("Vertical", 6, 3, 11, 3),
    Sketcher.Constraint("Vertical", 9, 3, 15, 3),
    Sketcher.Constraint("Vertical", 1, 3, 6, 1),
    Sketcher.Constraint("Vertical", 3, 3, 8, 2),
    Sketcher.Constraint("Diameter", 0, 4.0),
    Sketcher.Constraint("Radius", 6, 14.0),
    Sketcher.Constraint("DistanceX", 0, 3, -1, 1, 8.0),
    Sketcher.Constraint("DistanceY", 0, 3, -1, 1, 11.0),
    Sketcher.Constraint("DistanceY", 1, 3, -1, 1, 43.0),
    Sketcher.Constraint("DistanceX", 2, 3, -1, 1, 40.0),
])
sketch14.setExpression("Constraints[42]", "Params.sketch14_diameter")
sketch14.setExpression("Constraints[43]", "Params.sketch14_radius")
pocket3 = body.newObject("PartDesign::Pocket", "Pocket002")
pocket3.Profile = sketch14
pocket3.setExpression("Length", "Params.pocket3_length")
pocket3.Reversed = True
doc.recompute()

chamfer = body.newObject("PartDesign::Chamfer", "Chamfer")
chamfer.Base = (pocket3, edges_at(pocket3, [
    (-22, 102.2, -25),
    (-26, 102.2, -25),
    (-22, 102.2, -29),
    (-26, 102.2, -29),
]))
chamfer.setExpression("Size", "Params.chamfer_size")
doc.recompute()

chamfer2 = body.newObject("PartDesign::Chamfer", "Chamfer001")
chamfer2.Base = (chamfer, edges_at(chamfer, [(-20, 103.2, 5)]))
chamfer2.setExpression("Size", "Params.chamfer2_size")

# Sketch on XZ plane
sketch15 = body.newObject("Sketcher::SketchObject", "Sketch014")
sketch15.AttachmentSupport = (doc.getObject("XZ_Plane"), [""])
sketch15.MapMode = "FlatFace"
sketch15.AttachmentOffset = App.Placement(Vector(0, 0, 7.4), App.Rotation())
sketch15.addGeometry([
    Part.LineSegment(Vector(-66, -26, 0), Vector(-66, -51, 0)),
    Part.LineSegment(Vector(-66, -51, 0), Vector(-65, -51, 0)),
    Part.LineSegment(Vector(-65, -51, 0), Vector(-65, -25, 0)),
    Part.LineSegment(Vector(-65, -25, 0), Vector(-66, -26, 0)),
], False)
sketch15.addConstraint([
    Sketcher.Constraint("Coincident", 0, 2, 1, 1),
    Sketcher.Constraint("Coincident", 1, 2, 2, 1),
    Sketcher.Constraint("Coincident", 2, 2, 3, 1),
    Sketcher.Constraint("Coincident", 3, 2, 0, 1),
    Sketcher.Constraint("Vertical", 0),
    Sketcher.Constraint("Horizontal", 1),
    Sketcher.Constraint("Vertical", 2),
    Sketcher.Constraint("DistanceX", 1, 1, 1, 2, 1.0),
    Sketcher.Constraint("DistanceY", 0, 2, 0, 1, 25.0),
    Sketcher.Constraint("DistanceY", 2, 1, 2, 2, 26.0),
    Sketcher.Constraint("DistanceX", 0, 2, -1, 1, 66.0),
    Sketcher.Constraint("DistanceY", 0, 2, -1, 1, 51.0),
])
sketch15.setExpression("Constraints[7]", "Params.sketch15_width")
sketch15.setExpression("Constraints[8]", "Params.sketch15_height")
sketch15.setExpression("Constraints[9]", "Params.sketch15_height2")
pad12 = body.newObject("PartDesign::Pad", "Pad011")
pad12.Profile = sketch15
pad12.Type = "TwoLengths"
pad12.setExpression("Length", "Params.pad12_length")
pad12.setExpression("Length2", "Params.pad12_length2")
doc.recompute()

chamfer3 = body.newObject("PartDesign::Chamfer", "Chamfer002")
chamfer3.Base = (pad12, edges_at(pad12, [(-65, -4.4, -38)]))
chamfer3.setExpression("Size", "Params.chamfer3_size")
doc.recompute()

chamfer4 = body.newObject("PartDesign::Chamfer", "Chamfer003")
chamfer4.Base = (chamfer3, edges_at(chamfer3, [
    (-8, 102.2, -25),
    (-8, 102.2, -29),
    (-22, 102.2, -11),
    (-26, 102.2, -11),
    (-40, 102.2, -25),
    (-40, 102.2, -29),
    (-26, 102.2, -43),
    (-22, 102.2, -43),
]))
chamfer4.setExpression("Size", "Params.chamfer4_size")

doc.recompute()
